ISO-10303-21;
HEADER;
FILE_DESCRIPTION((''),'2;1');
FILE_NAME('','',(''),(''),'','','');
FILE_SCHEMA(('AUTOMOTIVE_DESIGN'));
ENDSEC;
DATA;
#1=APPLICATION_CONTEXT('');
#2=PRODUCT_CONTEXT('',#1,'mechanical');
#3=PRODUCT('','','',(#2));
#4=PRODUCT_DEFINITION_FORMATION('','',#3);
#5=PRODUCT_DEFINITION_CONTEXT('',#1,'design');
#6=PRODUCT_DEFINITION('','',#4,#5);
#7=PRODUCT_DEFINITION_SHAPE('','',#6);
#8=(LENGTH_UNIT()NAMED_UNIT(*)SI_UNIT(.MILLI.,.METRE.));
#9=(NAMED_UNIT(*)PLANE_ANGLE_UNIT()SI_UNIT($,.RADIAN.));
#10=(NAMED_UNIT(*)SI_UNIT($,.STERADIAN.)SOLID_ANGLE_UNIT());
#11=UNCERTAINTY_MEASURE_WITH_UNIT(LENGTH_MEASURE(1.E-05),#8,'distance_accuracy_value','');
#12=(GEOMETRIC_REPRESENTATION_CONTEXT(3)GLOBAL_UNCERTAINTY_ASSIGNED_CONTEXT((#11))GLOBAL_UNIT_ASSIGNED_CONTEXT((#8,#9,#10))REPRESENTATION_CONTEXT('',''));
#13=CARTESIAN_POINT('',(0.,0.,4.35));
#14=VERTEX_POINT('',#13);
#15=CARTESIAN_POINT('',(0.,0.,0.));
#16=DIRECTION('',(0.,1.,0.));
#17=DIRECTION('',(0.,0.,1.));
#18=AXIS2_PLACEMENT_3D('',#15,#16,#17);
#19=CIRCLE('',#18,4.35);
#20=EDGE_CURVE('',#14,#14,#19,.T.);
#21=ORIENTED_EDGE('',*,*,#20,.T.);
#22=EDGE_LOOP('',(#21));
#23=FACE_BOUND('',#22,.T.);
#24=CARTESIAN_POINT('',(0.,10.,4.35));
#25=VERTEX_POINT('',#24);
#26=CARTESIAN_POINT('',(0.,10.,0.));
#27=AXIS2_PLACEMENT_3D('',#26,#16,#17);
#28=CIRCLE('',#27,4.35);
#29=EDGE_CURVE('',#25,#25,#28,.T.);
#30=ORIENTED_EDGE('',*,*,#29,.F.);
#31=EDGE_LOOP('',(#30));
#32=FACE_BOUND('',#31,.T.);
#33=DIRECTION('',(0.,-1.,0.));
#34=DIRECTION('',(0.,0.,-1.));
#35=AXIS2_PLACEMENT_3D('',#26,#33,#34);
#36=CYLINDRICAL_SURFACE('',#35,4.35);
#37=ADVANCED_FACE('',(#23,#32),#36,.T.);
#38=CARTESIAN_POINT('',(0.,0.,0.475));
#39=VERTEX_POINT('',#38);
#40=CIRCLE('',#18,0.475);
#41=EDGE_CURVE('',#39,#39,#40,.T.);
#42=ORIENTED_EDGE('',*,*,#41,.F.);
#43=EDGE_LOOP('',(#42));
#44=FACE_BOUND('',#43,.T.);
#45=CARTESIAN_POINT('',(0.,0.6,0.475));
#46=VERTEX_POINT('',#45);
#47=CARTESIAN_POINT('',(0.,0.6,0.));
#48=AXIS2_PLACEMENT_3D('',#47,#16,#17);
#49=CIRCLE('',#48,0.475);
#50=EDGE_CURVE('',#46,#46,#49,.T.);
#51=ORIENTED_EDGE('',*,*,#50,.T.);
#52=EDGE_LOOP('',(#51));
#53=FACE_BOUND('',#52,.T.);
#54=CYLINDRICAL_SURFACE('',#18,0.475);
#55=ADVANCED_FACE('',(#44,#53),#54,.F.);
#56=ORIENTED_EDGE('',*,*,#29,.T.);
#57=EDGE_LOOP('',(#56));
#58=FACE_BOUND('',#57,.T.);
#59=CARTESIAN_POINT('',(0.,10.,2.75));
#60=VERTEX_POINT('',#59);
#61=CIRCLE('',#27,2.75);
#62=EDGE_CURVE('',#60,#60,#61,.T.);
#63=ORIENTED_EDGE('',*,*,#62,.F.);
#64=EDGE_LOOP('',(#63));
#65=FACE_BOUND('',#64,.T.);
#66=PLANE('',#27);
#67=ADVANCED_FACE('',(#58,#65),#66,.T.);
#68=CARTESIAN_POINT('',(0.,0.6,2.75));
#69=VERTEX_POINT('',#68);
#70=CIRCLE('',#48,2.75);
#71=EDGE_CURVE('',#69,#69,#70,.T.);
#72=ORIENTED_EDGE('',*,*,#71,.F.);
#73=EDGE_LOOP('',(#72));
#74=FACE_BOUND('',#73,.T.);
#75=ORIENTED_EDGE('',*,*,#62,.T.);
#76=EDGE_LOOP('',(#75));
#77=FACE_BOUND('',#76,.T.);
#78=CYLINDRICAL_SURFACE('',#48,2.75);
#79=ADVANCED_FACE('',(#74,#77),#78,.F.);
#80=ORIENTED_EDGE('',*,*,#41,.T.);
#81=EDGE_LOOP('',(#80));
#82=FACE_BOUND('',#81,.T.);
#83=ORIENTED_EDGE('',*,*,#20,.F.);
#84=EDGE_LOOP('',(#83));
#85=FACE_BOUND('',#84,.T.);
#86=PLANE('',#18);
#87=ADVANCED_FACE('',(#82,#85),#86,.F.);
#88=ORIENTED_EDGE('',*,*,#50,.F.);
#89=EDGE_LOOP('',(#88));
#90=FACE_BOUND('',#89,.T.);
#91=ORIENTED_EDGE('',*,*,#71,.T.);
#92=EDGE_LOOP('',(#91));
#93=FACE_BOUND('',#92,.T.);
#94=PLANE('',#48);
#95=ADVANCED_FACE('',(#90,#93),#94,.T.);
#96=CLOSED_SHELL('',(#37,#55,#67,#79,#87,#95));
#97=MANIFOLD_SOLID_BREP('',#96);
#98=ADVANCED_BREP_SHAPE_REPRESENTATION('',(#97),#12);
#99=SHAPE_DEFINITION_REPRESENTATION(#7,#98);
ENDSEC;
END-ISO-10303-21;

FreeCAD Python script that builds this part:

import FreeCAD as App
import Part
import Sketcher
Q = App.Units.Quantity

doc = App.newDocument("Part")
body = doc.addObject("PartDesign::Body", "Body")

# Sketch on XZ plane
sketch1 = doc.addObject("Sketcher::SketchObject", "Sketch")
body.addObject(sketch1)
sketch1.AttachmentSupport = (doc.XZ_Plane, [""])
sketch1.MapMode = "FlatFace"
sketch1.addGeometry(Part.Circle(App.Vector(0, 0, 0), App.Vector(0, 0, 1), 4.3), False)
sketch1.addConstraint([
    Sketcher.Constraint("Coincident", 0, 3, -1, 1),
    Sketcher.Constraint("Diameter", 0, Q("8.7 mm")),
])
pad1 = doc.addObject("PartDesign::Pad", "Pad")
body.addObject(pad1)
pad1.Profile = sketch1
pad1.Length = 10
pad1.Reversed = True

# Sketch on XZ plane
sketch2 = doc.addObject("Sketcher::SketchObject", "Sketch001")
body.addObject(sketch2)
sketch2.AttachmentSupport = (doc.XZ_Plane, [""])
sketch2.MapMode = "FlatFace"
sketch2.AttachmentOffset = App.Placement(App.Vector(0, 0, -10), App.Rotation())
sketch2.addGeometry(Part.Circle(App.Vector(0, 0, 0), App.Vector(0, 0, 1), 2.8), False)
sketch2.addConstraint([
    Sketcher.Constraint("Coincident", 0, 3, -1, 1),
    Sketcher.Constraint("Diameter", 0, Q("5.5 mm")),
])
pocket1 = doc.addObject("PartDesign::Pocket", "Pocket")
body.addObject(pocket1)
pocket1.Profile = sketch2
pocket1.Length = 9.4
pocket1.Reversed = True

# Sketch on XZ plane
sketch3 = doc.addObject("Sketcher::SketchObject", "Sketch002")
body.addObject(sketch3)
sketch3.AttachmentSupport = (doc.XZ_Plane, [""])
sketch3.MapMode = "FlatFace"
sketch3.AttachmentOffset = App.Placement(App.Vector(0, 0, -0.6), App.Rotation())
sketch3.addGeometry(Part.Circle(App.Vector(0, 0, 0), App.Vector(0, 0, 1), 0.47), False)
sketch3.addConstraint([
    Sketcher.Constraint("Coincident", 0, 3, -1, 1),
    Sketcher.Constraint("Diameter", 0, Q("0.95 mm")),
])
pocket2 = doc.addObject("PartDesign::Pocket", "Pocket001")
body.addObject(pocket2)
pocket2.Profile = sketch3
pocket2.Type = "ThroughAll"
pocket2.Reversed = True

doc.recompute()
